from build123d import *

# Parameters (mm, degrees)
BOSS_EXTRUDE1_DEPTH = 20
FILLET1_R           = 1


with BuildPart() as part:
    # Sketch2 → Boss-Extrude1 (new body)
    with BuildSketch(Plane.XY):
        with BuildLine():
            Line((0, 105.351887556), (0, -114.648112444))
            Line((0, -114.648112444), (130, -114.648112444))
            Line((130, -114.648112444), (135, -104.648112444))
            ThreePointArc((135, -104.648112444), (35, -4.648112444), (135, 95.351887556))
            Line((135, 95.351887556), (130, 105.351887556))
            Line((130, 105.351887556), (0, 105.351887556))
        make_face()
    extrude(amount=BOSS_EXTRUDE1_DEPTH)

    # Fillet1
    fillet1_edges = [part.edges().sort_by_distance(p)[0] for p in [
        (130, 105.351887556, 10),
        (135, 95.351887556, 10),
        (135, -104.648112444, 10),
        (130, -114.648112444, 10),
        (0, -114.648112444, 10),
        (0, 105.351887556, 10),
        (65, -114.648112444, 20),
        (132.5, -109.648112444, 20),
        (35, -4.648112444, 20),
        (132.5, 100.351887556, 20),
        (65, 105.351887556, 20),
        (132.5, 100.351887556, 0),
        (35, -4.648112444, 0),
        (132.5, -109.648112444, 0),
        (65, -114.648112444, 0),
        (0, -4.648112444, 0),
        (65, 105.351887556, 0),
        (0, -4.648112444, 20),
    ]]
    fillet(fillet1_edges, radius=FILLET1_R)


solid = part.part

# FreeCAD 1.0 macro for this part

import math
import FreeCAD as App
import Part
import Sketcher

doc = App.newDocument("Part")
params = doc.addObject("Spreadsheet::Sheet", "Params")
for row, (alias, value) in enumerate([
    ("sketch1_radius", "100 mm"),
    ("sketch1_width", "130 mm"),
    ("sketch1_height", "220 mm"),
    ("pad1_length", "20 mm"),
    ("fillet_radius", "1 mm"),
], start=1):
    params.set(f"A{row}", alias)
    params.set(f"B{row}", "=" + value)
    params.setAlias(f"B{row}", alias)

body = doc.addObject("PartDesign::Body", "Body")

sketch1 = doc.addObject("Sketcher::SketchObject", "Sketch")
body.addObject(sketch1)
sketch1.AttachmentSupport = (doc.XY_Plane, [""])
sketch1.MapMode = "FlatFace"
sketch1.addGeometry([
    Part.LineSegment(App.Vector(0, 105, 0), App.Vector(0, -115, 0)),
    Part.LineSegment(App.Vector(0, -115, 0), App.Vector(130, -115, 0)),
    Part.LineSegment(App.Vector(130, -115, 0), App.Vector(135, -105, 0)),
    Part.ArcOfCircle(Part.Circle(App.Vector(135, -5, 0), App.Vector(0, 0, 1), 100), math.radians(90), math.radians(270)),
    Part.LineSegment(App.Vector(135, 95, 0), App.Vector(130, 105, 0)),
    Part.LineSegment(App.Vector(130, 105, 0), App.Vector(0, 105, 0)),
], False)
sketch1.addConstraint([
    Sketcher.Constraint("Coincident", 0, 2, 1, 1),
    Sketcher.Constraint("Coincident", 1, 2, 2, 1),
    Sketcher.Constraint("Coincident", 2, 2, 3, 2),
    Sketcher.Constraint("Coincident", 3, 1, 4, 1),
    Sketcher.Constraint("Coincident", 4, 2, 5, 1),
    Sketcher.Constraint("Coincident", 5, 2, 0, 1),
    Sketcher.Constraint("Vertical", 0),
    Sketcher.Constraint("Horizontal", 1),
    Sketcher.Constraint("Horizontal", 5),
    Sketcher.Constraint("PointOnObject", 0, 2, -2),
    Sketcher.Constraint("Vertical", 3, 3, 2, 2),
    Sketcher.Constraint("Vertical", 2, 2, 3, 1),
    Sketcher.Constraint("Vertical", 1, 2, 4, 2),
    Sketcher.Constraint("Equal", 2, 4),
    Sketcher.Constraint("Radius", 3, 100.0),
    Sketcher.Constraint("DistanceX", 1, 1, 1, 2, 130.0),
    Sketcher.Constraint("DistanceY", 0, 2, 0, 1, 220.0),
    Sketcher.Constraint("DistanceX", -1, 1, 3, 3, 135.0),
    Sketcher.Constraint("DistanceY", 3, 3, -1, 1, 4.648112),
])
sketch1.setExpression("Constraints[14]", "Params.sketch1_radius")
sketch1.setExpression("Constraints[15]", "Params.sketch1_width")
sketch1.setExpression("Constraints[16]", "Params.sketch1_height")
pad1 = doc.addObject("PartDesign::Pad", "Pad")
body.addObject(pad1)
pad1.Profile = sketch1
pad1.setExpression("Length", "Params.pad1_length")
doc.recompute()

fillet = doc.addObject("PartDesign::Fillet", "Fillet")
body.addObject(fillet)
fillet.Base = (pad1, ["Edge1"])
fillet.UseAllEdges = True
fillet.setExpression("Radius", "Params.fillet_radius")

doc.recompute()
